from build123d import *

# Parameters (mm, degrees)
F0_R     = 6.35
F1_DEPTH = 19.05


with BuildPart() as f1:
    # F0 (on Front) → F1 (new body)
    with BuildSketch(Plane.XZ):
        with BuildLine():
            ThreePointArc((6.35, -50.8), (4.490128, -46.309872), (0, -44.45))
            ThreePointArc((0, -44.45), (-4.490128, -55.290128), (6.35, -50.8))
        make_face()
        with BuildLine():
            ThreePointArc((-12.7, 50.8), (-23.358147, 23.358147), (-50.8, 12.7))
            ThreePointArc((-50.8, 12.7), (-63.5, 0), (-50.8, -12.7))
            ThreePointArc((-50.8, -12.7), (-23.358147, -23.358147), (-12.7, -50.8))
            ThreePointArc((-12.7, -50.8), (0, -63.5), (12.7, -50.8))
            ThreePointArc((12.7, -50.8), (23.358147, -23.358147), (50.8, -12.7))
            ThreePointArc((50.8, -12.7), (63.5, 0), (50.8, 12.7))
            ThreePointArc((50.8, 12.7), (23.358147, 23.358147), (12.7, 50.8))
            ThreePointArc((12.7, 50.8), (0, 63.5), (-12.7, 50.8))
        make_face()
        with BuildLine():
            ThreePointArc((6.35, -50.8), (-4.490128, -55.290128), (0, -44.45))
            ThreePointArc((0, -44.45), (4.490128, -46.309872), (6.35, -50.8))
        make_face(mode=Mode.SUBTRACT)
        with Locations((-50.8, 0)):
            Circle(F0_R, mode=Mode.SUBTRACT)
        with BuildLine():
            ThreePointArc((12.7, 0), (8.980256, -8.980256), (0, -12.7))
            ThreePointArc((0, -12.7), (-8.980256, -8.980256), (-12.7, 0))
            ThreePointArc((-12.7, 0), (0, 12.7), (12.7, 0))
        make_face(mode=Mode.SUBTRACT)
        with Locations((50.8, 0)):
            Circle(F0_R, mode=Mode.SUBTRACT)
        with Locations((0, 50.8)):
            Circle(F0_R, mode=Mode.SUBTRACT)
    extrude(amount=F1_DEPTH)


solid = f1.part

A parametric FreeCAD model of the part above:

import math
import FreeCAD as App
import Part
import Sketcher
from FreeCAD import Vector
Q = App.Units.Quantity

doc = App.newDocument("Part")
body = doc.addObject("PartDesign::Body", "Body")

sketch1 = body.newObject("Sketcher::SketchObject", "Sketch")
sketch1.AttachmentSupport = (doc.getObject("XZ_Plane"), [""])
sketch1.MapMode = "FlatFace"
sketch1.addGeometry(Part.ArcOfCircle(Part.Circle(Vector(-49.176384, 49.176384, 0), Vector(0, 0, 1), 36.512501), math.radians(-92.548635), math.radians(2.548635)), False)
sketch1.addGeometry(Part.ArcOfCircle(Part.Circle(Vector(-50.8, 0, 0), Vector(0, 0, 1), 12.7), math.radians(90), math.radians(270)), False)
sketch1.addGeometry(Part.ArcOfCircle(Part.Circle(Vector(-49.176384, -49.176384, 0), Vector(0, 0, 1), 36.512501), math.radians(-2.548635), math.radians(92.548635)), False)
sketch1.addGeometry(Part.ArcOfCircle(Part.Circle(Vector(0, -50.8, 0), Vector(0, 0, 1), 12.7), math.radians(180), math.radians(360)), False)
sketch1.addGeometry(Part.ArcOfCircle(Part.Circle(Vector(49.176384, -49.176384, 0), Vector(0, 0, 1), 36.512501), math.radians(87.451365), math.radians(182.548635)), False)
sketch1.addGeometry(Part.ArcOfCircle(Part.Circle(Vector(50.8, 0, 0), Vector(0, 0, 1), 12.7), math.radians(-90), math.radians(90)), False)
sketch1.addGeometry(Part.ArcOfCircle(Part.Circle(Vector(49.176384, 49.176384, 0), Vector(0, 0, 1), 36.512501), math.radians(177.451365), math.radians(272.548635)), False)
sketch1.addGeometry(Part.ArcOfCircle(Part.Circle(Vector(0, 50.8, 0), Vector(0, 0, 1), 12.7), math.radians(0), math.radians(180)), False)
sketch1.addGeometry(Part.Circle(Vector(-50.8, 0, 0), Vector(0, 0, 1), 6.35), False)
sketch1.addGeometry(Part.ArcOfCircle(Part.Circle(Vector(0, -50.8, 0), Vector(0, 0, 1), 6.35), math.radians(0.000002), math.radians(89.999998)), False)
sketch1.addGeometry(Part.ArcOfCircle(Part.Circle(Vector(0, -50.8, 0), Vector(0, 0, 1), 6.35), math.radians(90), math.radians(360)), False)
sketch1.addGeometry(Part.ArcOfCircle(Part.Circle(Vector(0, 0, 0), Vector(0, 0, 1), 12.7), math.radians(0), math.radians(180)), False)
sketch1.addGeometry(Part.ArcOfCircle(Part.Circle(Vector(0, 0, 0), Vector(0, 0, 1), 12.7), math.radians(-89.999998), math.radians(-0.000002)), False)
sketch1.addGeometry(Part.ArcOfCircle(Part.Circle(Vector(0, 0, 0), Vector(0, 0, 1), 12.7), math.radians(-179.999998), math.radians(-90.000002)), False)
sketch1.addGeometry(Part.Circle(Vector(50.8, 0, 0), Vector(0, 0, 1), 6.35), False)
sketch1.addGeometry(Part.Circle(Vector(0, 50.8, 0), Vector(0, 0, 1), 6.35), False)
sketch1.addConstraint(Sketcher.Constraint("Coincident", 0, 1, 1, 1))
sketch1.addConstraint(Sketcher.Constraint("Coincident", 1, 2, 2, 2))
sketch1.addConstraint(Sketcher.Constraint("Coincident", 2, 1, 3, 1))
sketch1.addConstraint(Sketcher.Constraint("Coincident", 3, 2, 4, 2))
sketch1.addConstraint(Sketcher.Constraint("Coincident", 4, 1, 5, 1))
sketch1.addConstraint(Sketcher.Constraint("Coincident", 5, 2, 6, 2))
sketch1.addConstraint(Sketcher.Constraint("Coincident", 6, 1, 7, 1))
sketch1.addConstraint(Sketcher.Constraint("Coincident", 7, 2, 0, 2))
sketch1.addConstraint(Sketcher.Constraint("Tangent", 9, 1, 10, 2))
sketch1.addConstraint(Sketcher.Constraint("Coincident", 10, 1, 9, 2))
sketch1.addConstraint(Sketcher.Constraint("Tangent", 11, 1, 12, 2))
sketch1.addConstraint(Sketcher.Constraint("Tangent", 12, 1, 13, 2))
sketch1.addConstraint(Sketcher.Constraint("Tangent", 13, 1, 11, 2))
sketch1.addConstraint(Sketcher.Constraint("Coincident", 11, 3, -1, 1))
sketch1.addConstraint(Sketcher.Constraint("Coincident", 8, 3, 1, 3))
sketch1.addConstraint(Sketcher.Constraint("Coincident", 9, 3, 3, 3))
sketch1.addConstraint(Sketcher.Constraint("Coincident", 14, 3, 5, 3))
sketch1.addConstraint(Sketcher.Constraint("Coincident", 15, 3, 7, 3))
sketch1.addConstraint(Sketcher.Constraint("Equal", 0, 2))
sketch1.addConstraint(Sketcher.Constraint("Equal", 1, 3))
sketch1.addConstraint(Sketcher.Constraint("Equal", 2, 4))
sketch1.addConstraint(Sketcher.Constraint("Equal", 3, 5))
sketch1.addConstraint(Sketcher.Constraint("Equal", 4, 6))
sketch1.addConstraint(Sketcher.Constraint("Equal", 5, 7))
sketch1.addConstraint(Sketcher.Constraint("Equal", 8, 9))
sketch1.addConstraint(Sketcher.Constraint("Equal", 7, 11))
sketch1.addConstraint(Sketcher.Constraint("Equal", 10, 14))
sketch1.addConstraint(Sketcher.Constraint("Equal", 14, 15))
sketch1.addConstraint(Sketcher.Constraint("Symmetric", 0, 3, 4, 3, -1, 1))
sketch1.addConstraint(Sketcher.Constraint("Symmetric", 1, 3, 5, 3, -1, 1))
sketch1.addConstraint(Sketcher.Constraint("Symmetric", 2, 3, 6, 3, -1, 1))
sketch1.addConstraint(Sketcher.Constraint("Symmetric", 3, 3, 7, 3, -1, 1))
sketch1.addConstraint(Sketcher.Constraint("Symmetric", 2, 3, 4, 3, -2))
sketch1.addConstraint(Sketcher.Constraint("PointOnObject", 1, 3, -1))
sketch1.addConstraint(Sketcher.Constraint("PointOnObject", 3, 3, -2))
sketch1.addConstraint(Sketcher.Constraint("PointOnObject", 10, 1, -2))
sketch1.addConstraint(Sketcher.Constraint("PointOnObject", 11, 1, -1))
sketch1.addConstraint(Sketcher.Constraint("PointOnObject", 12, 1, -2))
sketch1.addConstraint(Sketcher.Constraint("PointOnObject", 13, 1, -1))
sketch1.addConstraint(Sketcher.Constraint("Horizontal", 10, 3, 2, 1))
sketch1.addConstraint(Sketcher.Constraint("Horizontal", 3, 2, 9, 1))
sketch1.addConstraint(Sketcher.Constraint("Vertical", 8, 3, 0, 1))
sketch1.addConstraint(Sketcher.Constraint("Diameter", 8, Q("0.5 in")))
sketch1.addConstraint(Sketcher.Constraint("Radius", 1, Q("0.5 in")))
sketch1.addConstraint(Sketcher.Constraint("DistanceX", 1, 3, -1, 1, Q("2 in")))
sketch1.addConstraint(Sketcher.Constraint("DistanceY", 3, 3, -1, 1, Q("2 in")))
sketch1.addConstraint(Sketcher.Constraint("Radius", 0, Q("1.4375 in")))
pad1 = body.newObject("PartDesign::Pad", "Pad")
pad1.Profile = sketch1
pad1.Length = Q("0.75 in")

doc.recompute()
